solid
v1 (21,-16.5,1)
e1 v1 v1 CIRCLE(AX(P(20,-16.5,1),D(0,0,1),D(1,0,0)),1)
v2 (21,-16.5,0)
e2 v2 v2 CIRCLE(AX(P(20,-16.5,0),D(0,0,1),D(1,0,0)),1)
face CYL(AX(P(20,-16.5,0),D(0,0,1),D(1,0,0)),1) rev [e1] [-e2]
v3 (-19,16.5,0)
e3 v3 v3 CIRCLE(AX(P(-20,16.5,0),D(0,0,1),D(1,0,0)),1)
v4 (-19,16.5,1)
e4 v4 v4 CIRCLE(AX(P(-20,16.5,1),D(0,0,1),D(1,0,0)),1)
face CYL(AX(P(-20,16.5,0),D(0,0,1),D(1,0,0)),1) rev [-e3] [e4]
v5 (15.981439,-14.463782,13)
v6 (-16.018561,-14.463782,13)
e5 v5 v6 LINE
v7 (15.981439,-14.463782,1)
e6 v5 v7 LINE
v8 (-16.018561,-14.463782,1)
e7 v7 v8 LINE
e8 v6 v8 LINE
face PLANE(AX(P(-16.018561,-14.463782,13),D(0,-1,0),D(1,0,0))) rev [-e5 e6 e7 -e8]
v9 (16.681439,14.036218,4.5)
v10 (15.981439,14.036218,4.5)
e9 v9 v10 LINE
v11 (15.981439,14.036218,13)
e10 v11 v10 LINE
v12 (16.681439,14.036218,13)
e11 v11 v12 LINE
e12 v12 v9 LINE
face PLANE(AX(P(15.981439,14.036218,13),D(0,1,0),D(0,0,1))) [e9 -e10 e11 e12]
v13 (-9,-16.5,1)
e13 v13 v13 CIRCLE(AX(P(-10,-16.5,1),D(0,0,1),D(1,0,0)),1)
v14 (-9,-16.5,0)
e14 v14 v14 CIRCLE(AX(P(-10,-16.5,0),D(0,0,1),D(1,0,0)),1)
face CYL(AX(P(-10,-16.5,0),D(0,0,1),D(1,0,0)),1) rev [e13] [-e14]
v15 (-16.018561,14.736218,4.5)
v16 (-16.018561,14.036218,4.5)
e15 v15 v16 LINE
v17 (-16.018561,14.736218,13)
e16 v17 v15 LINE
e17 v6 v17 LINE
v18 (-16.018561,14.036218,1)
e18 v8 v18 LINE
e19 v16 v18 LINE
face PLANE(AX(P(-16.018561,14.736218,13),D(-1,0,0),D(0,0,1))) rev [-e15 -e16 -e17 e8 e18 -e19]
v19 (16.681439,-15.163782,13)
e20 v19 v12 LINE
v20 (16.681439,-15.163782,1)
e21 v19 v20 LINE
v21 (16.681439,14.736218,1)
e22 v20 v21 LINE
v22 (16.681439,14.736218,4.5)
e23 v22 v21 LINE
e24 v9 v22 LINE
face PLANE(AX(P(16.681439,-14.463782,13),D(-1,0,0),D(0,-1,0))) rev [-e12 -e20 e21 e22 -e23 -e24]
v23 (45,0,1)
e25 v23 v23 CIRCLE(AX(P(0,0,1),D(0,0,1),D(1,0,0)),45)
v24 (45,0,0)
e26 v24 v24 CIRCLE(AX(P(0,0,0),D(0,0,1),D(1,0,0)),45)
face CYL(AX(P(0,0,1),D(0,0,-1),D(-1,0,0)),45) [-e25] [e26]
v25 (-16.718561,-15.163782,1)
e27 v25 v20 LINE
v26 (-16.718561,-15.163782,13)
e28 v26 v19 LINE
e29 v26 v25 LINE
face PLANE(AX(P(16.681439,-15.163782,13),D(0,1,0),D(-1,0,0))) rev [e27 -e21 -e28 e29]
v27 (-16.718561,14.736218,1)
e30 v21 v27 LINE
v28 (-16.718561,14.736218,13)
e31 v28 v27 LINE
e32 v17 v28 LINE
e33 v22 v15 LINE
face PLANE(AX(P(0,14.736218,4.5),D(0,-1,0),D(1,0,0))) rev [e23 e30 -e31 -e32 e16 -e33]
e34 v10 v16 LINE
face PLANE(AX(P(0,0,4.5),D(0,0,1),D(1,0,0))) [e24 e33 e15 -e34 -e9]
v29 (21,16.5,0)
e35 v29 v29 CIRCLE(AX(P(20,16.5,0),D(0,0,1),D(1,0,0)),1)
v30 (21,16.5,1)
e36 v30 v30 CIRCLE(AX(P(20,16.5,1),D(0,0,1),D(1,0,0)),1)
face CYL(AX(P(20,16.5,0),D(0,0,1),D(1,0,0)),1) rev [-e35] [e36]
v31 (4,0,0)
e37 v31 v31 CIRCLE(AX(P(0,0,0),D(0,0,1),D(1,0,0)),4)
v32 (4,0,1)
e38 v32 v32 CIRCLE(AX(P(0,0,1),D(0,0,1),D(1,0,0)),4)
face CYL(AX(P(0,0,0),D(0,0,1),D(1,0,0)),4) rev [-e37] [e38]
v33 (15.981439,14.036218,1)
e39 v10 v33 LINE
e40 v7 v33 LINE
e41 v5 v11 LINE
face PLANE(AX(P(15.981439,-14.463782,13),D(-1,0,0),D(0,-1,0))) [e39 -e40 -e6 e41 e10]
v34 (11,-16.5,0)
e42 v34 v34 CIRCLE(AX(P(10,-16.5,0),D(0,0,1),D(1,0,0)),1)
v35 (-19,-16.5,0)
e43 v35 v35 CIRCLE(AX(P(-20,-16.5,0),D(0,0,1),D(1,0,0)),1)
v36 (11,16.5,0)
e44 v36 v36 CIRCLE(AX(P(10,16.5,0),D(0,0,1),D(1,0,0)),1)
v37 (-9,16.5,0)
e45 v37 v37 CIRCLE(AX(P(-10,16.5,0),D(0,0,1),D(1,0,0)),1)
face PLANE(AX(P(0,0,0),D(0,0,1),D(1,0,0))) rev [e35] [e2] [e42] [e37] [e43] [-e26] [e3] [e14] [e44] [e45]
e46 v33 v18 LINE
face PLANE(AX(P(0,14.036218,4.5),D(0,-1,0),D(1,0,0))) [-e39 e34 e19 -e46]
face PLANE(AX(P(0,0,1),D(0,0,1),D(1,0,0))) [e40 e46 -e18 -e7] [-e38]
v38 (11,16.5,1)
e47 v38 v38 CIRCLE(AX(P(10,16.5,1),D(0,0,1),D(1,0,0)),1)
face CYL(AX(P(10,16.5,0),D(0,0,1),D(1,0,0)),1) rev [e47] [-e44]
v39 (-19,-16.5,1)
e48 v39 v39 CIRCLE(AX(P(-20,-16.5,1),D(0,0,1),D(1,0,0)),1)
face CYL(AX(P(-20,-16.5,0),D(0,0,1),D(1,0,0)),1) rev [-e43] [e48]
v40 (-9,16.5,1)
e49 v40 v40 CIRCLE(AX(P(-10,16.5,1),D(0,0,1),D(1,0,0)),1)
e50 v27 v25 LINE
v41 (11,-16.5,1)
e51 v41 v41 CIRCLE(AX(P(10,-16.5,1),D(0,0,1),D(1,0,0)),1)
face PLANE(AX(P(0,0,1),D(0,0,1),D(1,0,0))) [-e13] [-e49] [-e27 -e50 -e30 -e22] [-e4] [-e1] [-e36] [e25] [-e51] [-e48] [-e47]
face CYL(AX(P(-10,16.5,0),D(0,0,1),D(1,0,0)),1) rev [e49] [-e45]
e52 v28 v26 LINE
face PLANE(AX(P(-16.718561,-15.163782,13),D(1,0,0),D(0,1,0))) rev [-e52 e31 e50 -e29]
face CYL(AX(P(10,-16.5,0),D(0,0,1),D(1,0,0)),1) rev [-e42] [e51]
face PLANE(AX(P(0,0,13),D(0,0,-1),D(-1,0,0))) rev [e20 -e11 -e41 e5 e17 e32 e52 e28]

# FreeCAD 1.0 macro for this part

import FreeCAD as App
import Part
import Sketcher


def add_polygon(sketch, points):
    """Adds a closed chain of lines whose ends are joined by coincident constraints."""
    first, n = sketch.GeometryCount, len(points)
    for a, b in zip(points, points[1:] + points[:1]):
        sketch.addGeometry(Part.LineSegment(App.Vector(*a, 0), App.Vector(*b, 0)), False)
    for i in range(n):
        sketch.addConstraint(Sketcher.Constraint("Coincident", first + i, 2, first + (i + 1) % n, 1))

doc = App.newDocument("Part")
body = doc.addObject("PartDesign::Body", "Body")

sketch1 = body.newObject("Sketcher::SketchObject", "Sketch")
sketch1.AttachmentSupport = (doc.getObject("XY_Plane"), [""])
sketch1.MapMode = "FlatFace"
sketch1.addGeometry(Part.Circle(App.Vector(0, 0, 0), App.Vector(0, 0, 1), 45), False)
sketch1.addConstraint([
    Sketcher.Constraint("Coincident", 0, 3, -1, 1),
    Sketcher.Constraint("Diameter", 0, 90.0),
])
pad1 = body.newObject("PartDesign::Pad", "Pad")
pad1.Profile = sketch1
pad1.Length = 1

sketch2 = body.newObject("Sketcher::SketchObject", "Sketch001")
sketch2.AttachmentSupport = (doc.getObject("XY_Plane"), [""])
sketch2.MapMode = "FlatFace"
sketch2.AttachmentOffset = App.Placement(App.Vector(0, 0, 1), App.Rotation())
sketch2.addGeometry([
    Part.Circle(App.Vector(20, -16.5, 0), App.Vector(0, 0, 1), 1),
    Part.Circle(App.Vector(20, 16.5, 0), App.Vector(0, 0, 1), 1),
    Part.Circle(App.Vector(-20, 16.5, 0), App.Vector(0, 0, 1), 1),
    Part.Circle(App.Vector(-20, -16.5, 0), App.Vector(0, 0, 1), 1),
    Part.Circle(App.Vector(10, -16.5, 0), App.Vector(0, 0, 1), 1),
    Part.Circle(App.Vector(10, 16.5, 0), App.Vector(0, 0, 1), 1),
    Part.Circle(App.Vector(-10, 16.5, 0), App.Vector(0, 0, 1), 1),
    Part.Circle(App.Vector(-10, -16.5, 0), App.Vector(0, 0, 1), 1),
], False)
sketch2.addConstraint([
    Sketcher.Constraint("Equal", 0, 1),
    Sketcher.Constraint("Equal", 1, 2),
    Sketcher.Constraint("Equal", 2, 3),
    Sketcher.Constraint("Equal", 3, 4),
    Sketcher.Constraint("Equal", 4, 5),
    Sketcher.Constraint("Equal", 5, 6),
    Sketcher.Constraint("Equal", 6, 7),
    Sketcher.Constraint("Symmetric", 0, 3, 2, 3, -1, 1),
    Sketcher.Constraint("Symmetric", 1, 3, 3, 3, -1, 1),
    Sketcher.Constraint("Symmetric", 4, 3, 6, 3, -1, 1),
    Sketcher.Constraint("Symmetric", 5, 3, 7, 3, -1, 1),
    Sketcher.Constraint("Symmetric", 1, 3, 2, 3, -2),
    Sketcher.Constraint("Symmetric", 5, 3, 6, 3, -2),
    Sketcher.Constraint("Horizontal", 3, 3, 4, 3),
    Sketcher.Constraint("Diameter", 0, 2.0),
    Sketcher.Constraint("DistanceX", -1, 1, 0, 3, 20.0),
    Sketcher.Constraint("DistanceX", -1, 1, 4, 3, 10.0),
    Sketcher.Constraint("DistanceY", 0, 3, 1, 3, 33.0),
])
pocket1 = body.newObject("PartDesign::Pocket", "Pocket")
pocket1.Profile = sketch2
pocket1.Type = "ThroughAll"

sketch3 = body.newObject("Sketcher::SketchObject", "Sketch002")
sketch3.AttachmentSupport = (doc.getObject("XY_Plane"), [""])
sketch3.MapMode = "FlatFace"
sketch3.AttachmentOffset = App.Placement(App.Vector(0, 0, 1), App.Rotation())
sketch3.addGeometry(Part.Circle(App.Vector(0, 0, 0), App.Vector(0, 0, 1), 4), False)
sketch3.addConstraint([
    Sketcher.Constraint("Coincident", 0, 3, -1, 1),
    Sketcher.Constraint("Diameter", 0, 8.0),
])
pocket2 = body.newObject("PartDesign::Pocket", "Pocket001")
pocket2.Profile = sketch3
pocket2.Type = "ThroughAll"

sketch4 = body.newObject("Sketcher::SketchObject", "Sketch003")
sketch4.AttachmentSupport = (doc.getObject("XY_Plane"), [""])
sketch4.MapMode = "FlatFace"
sketch4.AttachmentOffset = App.Placement(App.Vector(0, 0, 1), App.Rotation())
add_polygon(sketch4, [(16, 14), (16, -14.5), (16.7, -14.5), (16.7, 14)])
sketch4.addConstraint([
    Sketcher.Constraint("Vertical", 0),
    Sketcher.Constraint("Horizontal", 1),
    Sketcher.Constraint("Vertical", 2),
    Sketcher.Constraint("Horizontal", 3),
    Sketcher.Constraint("DistanceX", 1, 1, 1, 2, 0.7),
    Sketcher.Constraint("DistanceY", 0, 2, 0, 1, 28.5),
    Sketcher.Constraint("DistanceX", -1, 1, 0, 2, 15.981439),
    Sketcher.Constraint("DistanceY", 0, 2, -1, 1, 14.463782),
])
pad2 = body.newObject("PartDesign::Pad", "Pad001")
pad2.Profile = sketch4
pad2.Length = 12

sketch5 = body.newObject("Sketcher::SketchObject", "Sketch004")
sketch5.AttachmentSupport = (doc.getObject("XY_Plane"), [""])
sketch5.MapMode = "FlatFace"
sketch5.AttachmentOffset = App.Placement(App.Vector(0, 0, 1), App.Rotation())
add_polygon(sketch5, [(16.7, 14.7), (-16, 14.7), (-16, 14), (16.7, 14)])
sketch5.addConstraint([
    Sketcher.Constraint("Horizontal", 0),
    Sketcher.Constraint("Vertical", 1),
    Sketcher.Constraint("Horizontal", 2),
    Sketcher.Constraint("Vertical", 3),
    Sketcher.Constraint("DistanceX", 0, 2, 0, 1, 32.7),
    Sketcher.Constraint("DistanceY", 1, 2, 1, 1, 0.7),
    Sketcher.Constraint("DistanceX", 0, 2, -1, 1, 16.018561),
    Sketcher.Constraint("DistanceY", -1, 1, 0, 2, 14.736218),
])
pad3 = body.newObject("PartDesign::Pad", "Pad002")
pad3.Profile = sketch5
pad3.Length = 3.5

sketch6 = body.newObject("Sketcher::SketchObject", "Sketch005")
sketch6.AttachmentSupport = (doc.getObject("XY_Plane"), [""])
sketch6.MapMode = "FlatFace"
sketch6.AttachmentOffset = App.Placement(App.Vector(0, 0, 1), App.Rotation())
add_polygon(sketch6, [(16.7, -15.2), (16.7, -14.5), (-16, -14.5), (-16, 14.7), (-16.7, 14.7), (-16.7, -15.2)])
sketch6.addConstraint([
    Sketcher.Constraint("Vertical", 0),
    Sketcher.Constraint("Horizontal", 1),
    Sketcher.Constraint("Vertical", 2),
    Sketcher.Constraint("Horizontal", 3),
    Sketcher.Constraint("Vertical", 4),
    Sketcher.Constraint("Horizontal", 5),
    Sketcher.Constraint("Equal", 3, 0),
    Sketcher.Constraint("DistanceX", 1, 2, 1, 1, 32.7),
    Sketcher.Constraint("DistanceX", 3, 2, 3, 1, 0.7),
    Sketcher.Constraint("DistanceY", 2, 1, 2, 2, 29.2),
    Sketcher.Constraint("DistanceX", -1, 1, 0, 2, 16.681439),
    Sketcher.Constraint("DistanceY", 0, 2, -1, 1, 14.463782),
])
pad4 = body.newObject("PartDesign::Pad", "Pad003")
pad4.Profile = sketch6
pad4.Length = 12

doc.recompute()
